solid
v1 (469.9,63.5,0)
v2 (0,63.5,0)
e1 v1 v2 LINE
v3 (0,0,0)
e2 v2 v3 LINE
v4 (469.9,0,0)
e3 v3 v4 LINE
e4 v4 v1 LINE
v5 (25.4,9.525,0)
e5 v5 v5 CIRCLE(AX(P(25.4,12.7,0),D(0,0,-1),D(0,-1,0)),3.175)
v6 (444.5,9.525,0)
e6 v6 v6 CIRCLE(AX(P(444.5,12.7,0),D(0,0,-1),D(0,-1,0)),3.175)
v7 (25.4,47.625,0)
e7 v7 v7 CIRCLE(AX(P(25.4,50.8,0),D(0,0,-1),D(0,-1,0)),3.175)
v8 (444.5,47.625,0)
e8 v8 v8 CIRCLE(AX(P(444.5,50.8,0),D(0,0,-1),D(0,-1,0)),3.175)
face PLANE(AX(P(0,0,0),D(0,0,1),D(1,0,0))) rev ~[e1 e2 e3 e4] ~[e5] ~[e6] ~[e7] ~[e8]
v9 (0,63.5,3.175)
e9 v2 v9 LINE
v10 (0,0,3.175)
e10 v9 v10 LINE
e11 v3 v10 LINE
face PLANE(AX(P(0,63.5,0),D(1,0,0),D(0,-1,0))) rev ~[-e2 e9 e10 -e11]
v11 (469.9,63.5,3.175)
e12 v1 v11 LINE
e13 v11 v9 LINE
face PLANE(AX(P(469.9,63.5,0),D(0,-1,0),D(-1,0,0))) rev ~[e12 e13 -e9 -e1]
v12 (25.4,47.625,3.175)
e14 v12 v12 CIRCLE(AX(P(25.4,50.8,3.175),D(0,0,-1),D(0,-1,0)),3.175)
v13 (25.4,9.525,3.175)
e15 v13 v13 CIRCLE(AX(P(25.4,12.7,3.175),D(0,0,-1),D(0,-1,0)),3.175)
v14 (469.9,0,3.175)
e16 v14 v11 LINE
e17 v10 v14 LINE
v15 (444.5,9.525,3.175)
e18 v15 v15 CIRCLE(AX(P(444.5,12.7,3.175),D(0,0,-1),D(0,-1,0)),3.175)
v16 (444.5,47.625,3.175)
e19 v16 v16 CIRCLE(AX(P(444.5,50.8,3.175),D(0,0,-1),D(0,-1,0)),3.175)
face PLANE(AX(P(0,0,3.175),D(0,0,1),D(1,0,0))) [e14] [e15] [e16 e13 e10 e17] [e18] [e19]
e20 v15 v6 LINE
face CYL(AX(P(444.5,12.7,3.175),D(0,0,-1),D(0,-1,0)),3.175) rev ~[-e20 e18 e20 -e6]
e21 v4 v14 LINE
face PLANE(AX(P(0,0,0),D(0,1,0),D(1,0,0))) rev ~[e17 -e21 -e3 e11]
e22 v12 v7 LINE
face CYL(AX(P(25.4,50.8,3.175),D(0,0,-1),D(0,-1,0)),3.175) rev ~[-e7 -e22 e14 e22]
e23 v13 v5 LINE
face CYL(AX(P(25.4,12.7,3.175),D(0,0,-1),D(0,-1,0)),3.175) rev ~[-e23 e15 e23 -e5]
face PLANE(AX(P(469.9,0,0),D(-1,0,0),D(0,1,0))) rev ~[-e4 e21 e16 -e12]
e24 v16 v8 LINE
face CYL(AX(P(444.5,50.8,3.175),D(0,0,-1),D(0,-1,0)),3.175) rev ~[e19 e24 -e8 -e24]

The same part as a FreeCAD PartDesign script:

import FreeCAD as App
import Part
import Sketcher

V = App.Vector
Q = App.Units.Quantity


def add_polygon(sketch, points):
    """Adds a closed chain of lines whose ends are joined by coincident constraints."""
    first, n = sketch.GeometryCount, len(points)
    for a, b in zip(points, points[1:] + points[:1]):
        sketch.addGeometry(Part.LineSegment(App.Vector(*a, 0), App.Vector(*b, 0)), False)
    for i in range(n):
        sketch.addConstraint(Sketcher.Constraint("Coincident", first + i, 2, first + (i + 1) % n, 1))

doc = App.newDocument("Part")
body = doc.addObject("PartDesign::Body", "Body")

sketch1 = doc.addObject("Sketcher::SketchObject", "Sketch")
body.addObject(sketch1)
sketch1.AttachmentSupport = (doc.XY_Plane, [""])
sketch1.MapMode = "FlatFace"
add_polygon(sketch1, [(0, 63.5), (0, 0), (469.9, 0), (469.9, 63.5)])
sketch1.addConstraint([
    Sketcher.Constraint("Vertical", 0),
    Sketcher.Constraint("Horizontal", 1),
    Sketcher.Constraint("Vertical", 2),
    Sketcher.Constraint("Horizontal", 3),
    Sketcher.Constraint("Coincident", 0, 2, -1, 1),
    Sketcher.Constraint("DistanceX", 1, 1, 1, 2, Q("18.5 in")),
    Sketcher.Constraint("DistanceY", 0, 2, 0, 1, Q("2.5 in")),
])
pad1 = doc.addObject("PartDesign::Pad", "Pad")
body.addObject(pad1)
pad1.Profile = sketch1
pad1.Length = Q("0.125 in")

sketch2 = doc.addObject("Sketcher::SketchObject", "Sketch001")
body.addObject(sketch2)
sketch2.AttachmentSupport = (doc.XY_Plane, [""])
sketch2.MapMode = "FlatFace"
sketch2.AttachmentOffset = App.Placement(V(0, 0, 0.125 * 25.4), App.Rotation())
sketch2.addGeometry([
    Part.Circle(V(25.4, 50.8, 0), V(0, 0, 1), 3.175),
    Part.Circle(V(25.4, 12.7, 0), V(0, 0, 1), 3.175),
    Part.Circle(V(444.5, 12.7, 0), V(0, 0, 1), 3.175),
    Part.Circle(V(444.5, 50.8, 0), V(0, 0, 1), 3.175),
], False)
sketch2.addConstraint([
    Sketcher.Constraint("Equal", 0, 1),
    Sketcher.Constraint("Equal", 1, 2),
    Sketcher.Constraint("Equal", 2, 3),
    Sketcher.Constraint("Horizontal", 1, 3, 2, 3),
    Sketcher.Constraint("Horizontal", 0, 3, 3, 3),
    Sketcher.Constraint("Vertical", 0, 3, 1, 3),
    Sketcher.Constraint("Vertical", 2, 3, 3, 3),
    Sketcher.Constraint("Diameter", 0, Q("0.25 in")),
    Sketcher.Constraint("DistanceX", -1, 1, 0, 3, Q("1 in")),
    Sketcher.Constraint("DistanceY", -1, 1, 0, 3, Q("2 in")),
    Sketcher.Constraint("DistanceY", -1, 1, 1, 3, Q("0.5 in")),
    Sketcher.Constraint("DistanceX", -1, 1, 2, 3, Q("17.5 in")),
])
doc.recompute()
hole = doc.addObject("PartDesign::Hole", "Hole")
body.addObject(hole)
hole.Profile = sketch2
hole.ThreadType = "None"
hole.Diameter = Q("0.25 in")
hole.DepthType = "ThroughAll"

doc.recompute()
